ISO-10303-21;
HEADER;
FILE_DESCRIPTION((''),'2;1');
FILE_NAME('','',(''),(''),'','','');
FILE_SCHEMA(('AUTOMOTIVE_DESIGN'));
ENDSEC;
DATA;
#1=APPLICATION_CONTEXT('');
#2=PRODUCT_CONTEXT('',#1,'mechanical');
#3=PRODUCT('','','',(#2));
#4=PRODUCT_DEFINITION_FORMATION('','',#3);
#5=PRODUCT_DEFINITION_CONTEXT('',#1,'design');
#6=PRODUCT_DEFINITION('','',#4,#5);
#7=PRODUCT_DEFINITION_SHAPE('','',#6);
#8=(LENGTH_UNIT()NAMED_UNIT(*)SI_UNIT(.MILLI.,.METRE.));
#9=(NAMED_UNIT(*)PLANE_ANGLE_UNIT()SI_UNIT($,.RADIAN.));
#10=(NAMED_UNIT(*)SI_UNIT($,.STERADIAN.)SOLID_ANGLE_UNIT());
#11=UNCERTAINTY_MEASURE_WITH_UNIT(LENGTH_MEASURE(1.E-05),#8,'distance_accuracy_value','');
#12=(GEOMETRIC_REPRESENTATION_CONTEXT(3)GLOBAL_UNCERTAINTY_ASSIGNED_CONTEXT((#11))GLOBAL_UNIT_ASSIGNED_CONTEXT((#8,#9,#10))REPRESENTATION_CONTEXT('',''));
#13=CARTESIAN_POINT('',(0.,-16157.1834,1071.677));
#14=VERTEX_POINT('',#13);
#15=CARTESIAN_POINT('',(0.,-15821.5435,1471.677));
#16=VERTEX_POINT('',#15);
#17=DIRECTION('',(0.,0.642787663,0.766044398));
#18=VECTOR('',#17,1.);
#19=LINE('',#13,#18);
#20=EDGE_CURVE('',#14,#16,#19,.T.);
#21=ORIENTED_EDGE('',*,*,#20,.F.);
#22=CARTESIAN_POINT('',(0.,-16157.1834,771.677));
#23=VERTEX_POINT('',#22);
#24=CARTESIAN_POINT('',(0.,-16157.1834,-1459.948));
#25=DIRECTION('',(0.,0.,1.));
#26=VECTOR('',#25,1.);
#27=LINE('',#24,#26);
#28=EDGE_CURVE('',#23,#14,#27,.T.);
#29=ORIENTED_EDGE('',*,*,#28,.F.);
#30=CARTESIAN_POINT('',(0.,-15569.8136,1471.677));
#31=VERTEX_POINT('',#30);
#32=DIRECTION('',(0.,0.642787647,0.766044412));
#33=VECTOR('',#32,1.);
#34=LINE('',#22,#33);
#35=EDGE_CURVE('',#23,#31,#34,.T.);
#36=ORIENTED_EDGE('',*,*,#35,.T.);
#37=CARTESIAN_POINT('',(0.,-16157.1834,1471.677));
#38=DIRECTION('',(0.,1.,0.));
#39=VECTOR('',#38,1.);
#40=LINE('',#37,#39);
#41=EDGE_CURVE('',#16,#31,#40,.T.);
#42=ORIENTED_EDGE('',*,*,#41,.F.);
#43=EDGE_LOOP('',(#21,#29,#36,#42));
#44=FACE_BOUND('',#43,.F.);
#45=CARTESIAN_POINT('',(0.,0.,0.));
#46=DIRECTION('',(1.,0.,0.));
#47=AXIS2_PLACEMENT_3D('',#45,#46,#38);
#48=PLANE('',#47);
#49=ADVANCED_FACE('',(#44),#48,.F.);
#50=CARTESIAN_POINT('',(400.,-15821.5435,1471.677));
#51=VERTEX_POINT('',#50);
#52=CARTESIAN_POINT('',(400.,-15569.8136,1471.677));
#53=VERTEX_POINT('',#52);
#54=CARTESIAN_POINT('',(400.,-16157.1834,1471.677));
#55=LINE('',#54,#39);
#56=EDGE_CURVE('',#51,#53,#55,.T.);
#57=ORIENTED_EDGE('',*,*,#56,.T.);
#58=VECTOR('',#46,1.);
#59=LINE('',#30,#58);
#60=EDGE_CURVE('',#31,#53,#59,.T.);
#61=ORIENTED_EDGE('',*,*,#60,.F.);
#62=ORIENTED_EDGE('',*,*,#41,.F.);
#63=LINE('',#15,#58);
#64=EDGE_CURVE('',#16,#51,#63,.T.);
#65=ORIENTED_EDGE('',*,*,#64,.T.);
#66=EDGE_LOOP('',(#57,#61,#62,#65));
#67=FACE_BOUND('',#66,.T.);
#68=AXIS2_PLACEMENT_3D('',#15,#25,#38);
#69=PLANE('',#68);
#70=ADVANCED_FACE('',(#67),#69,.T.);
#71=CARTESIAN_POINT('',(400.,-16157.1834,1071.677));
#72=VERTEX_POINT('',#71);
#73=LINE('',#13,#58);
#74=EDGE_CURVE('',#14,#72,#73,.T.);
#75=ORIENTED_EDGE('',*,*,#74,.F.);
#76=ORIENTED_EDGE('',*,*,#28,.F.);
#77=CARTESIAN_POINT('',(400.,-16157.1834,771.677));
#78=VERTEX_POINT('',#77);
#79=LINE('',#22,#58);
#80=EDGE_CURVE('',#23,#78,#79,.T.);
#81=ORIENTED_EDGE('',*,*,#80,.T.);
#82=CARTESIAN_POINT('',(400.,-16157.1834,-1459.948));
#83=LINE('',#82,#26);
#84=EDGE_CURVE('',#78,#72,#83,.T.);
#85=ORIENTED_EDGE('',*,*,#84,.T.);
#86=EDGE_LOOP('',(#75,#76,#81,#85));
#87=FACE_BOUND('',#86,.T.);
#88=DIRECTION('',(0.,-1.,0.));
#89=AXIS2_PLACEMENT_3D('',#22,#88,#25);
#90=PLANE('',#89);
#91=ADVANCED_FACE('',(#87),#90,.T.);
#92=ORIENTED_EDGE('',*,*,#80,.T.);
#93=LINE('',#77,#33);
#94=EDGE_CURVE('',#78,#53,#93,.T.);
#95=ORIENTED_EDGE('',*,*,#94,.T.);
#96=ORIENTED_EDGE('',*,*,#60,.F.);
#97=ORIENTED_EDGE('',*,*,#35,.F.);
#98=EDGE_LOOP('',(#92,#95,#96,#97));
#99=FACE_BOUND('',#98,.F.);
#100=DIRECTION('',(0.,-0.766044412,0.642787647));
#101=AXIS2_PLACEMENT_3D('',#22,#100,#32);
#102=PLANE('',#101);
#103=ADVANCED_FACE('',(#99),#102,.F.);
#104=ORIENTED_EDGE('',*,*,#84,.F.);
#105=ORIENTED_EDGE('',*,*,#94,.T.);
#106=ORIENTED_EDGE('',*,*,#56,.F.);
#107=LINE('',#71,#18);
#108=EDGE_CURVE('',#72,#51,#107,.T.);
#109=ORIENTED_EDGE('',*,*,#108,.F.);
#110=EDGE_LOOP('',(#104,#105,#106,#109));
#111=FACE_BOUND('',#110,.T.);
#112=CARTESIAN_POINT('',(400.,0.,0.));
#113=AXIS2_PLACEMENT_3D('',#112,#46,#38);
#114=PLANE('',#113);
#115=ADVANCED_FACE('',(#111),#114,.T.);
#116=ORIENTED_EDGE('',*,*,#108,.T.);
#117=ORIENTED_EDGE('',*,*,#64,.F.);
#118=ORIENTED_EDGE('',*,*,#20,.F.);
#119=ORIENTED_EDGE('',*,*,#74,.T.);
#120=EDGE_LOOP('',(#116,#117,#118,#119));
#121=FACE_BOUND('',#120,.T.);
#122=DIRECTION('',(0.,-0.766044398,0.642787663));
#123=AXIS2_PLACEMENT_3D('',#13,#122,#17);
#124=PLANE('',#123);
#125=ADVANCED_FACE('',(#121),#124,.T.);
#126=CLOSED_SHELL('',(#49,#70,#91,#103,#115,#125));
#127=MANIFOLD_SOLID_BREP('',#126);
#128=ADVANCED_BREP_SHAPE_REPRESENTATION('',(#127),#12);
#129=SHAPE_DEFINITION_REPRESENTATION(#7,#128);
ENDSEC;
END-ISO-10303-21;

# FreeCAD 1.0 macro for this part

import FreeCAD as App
import Part
import Sketcher
from FreeCAD import Vector
Q = App.Units.Quantity


def add_polygon(sketch, points):
    """Adds a closed chain of lines whose ends are joined by coincident constraints."""
    first, n = sketch.GeometryCount, len(points)
    for a, b in zip(points, points[1:] + points[:1]):
        sketch.addGeometry(Part.LineSegment(App.Vector(*a, 0), App.Vector(*b, 0)), False)
    for i in range(n):
        sketch.addConstraint(Sketcher.Constraint("Coincident", first + i, 2, first + (i + 1) % n, 1))

doc = App.newDocument("Part")
params = doc.addObject("Spreadsheet::Sheet", "Params")
for row, (alias, value) in enumerate([
    ("sketch1_height", "300 mm"),
    ("pad1_length", "400 mm"),
], start=1):
    params.set(f"A{row}", alias)
    params.set(f"B{row}", "=" + value)
    params.setAlias(f"B{row}", alias)

body = doc.addObject("PartDesign::Body", "Body")

sketch1 = body.newObject("Sketcher::SketchObject", "Sketch")
sketch1.AttachmentSupport = (doc.getObject("YZ_Plane"), [""])
sketch1.MapMode = "FlatFace"
add_polygon(sketch1, [(-16157, 1072), (-16157, 772), (-15570, 1472), (-15822, 1472)])
sketch1.addConstraint(Sketcher.Constraint("Vertical", 0))
sketch1.addConstraint(Sketcher.Constraint("Horizontal", 2))
sketch1.addConstraint(Sketcher.Constraint("Parallel", 1, 3))
sketch1.addConstraint(Sketcher.Constraint("DistanceY", 0, 2, 0, 1, 300.0))
sketch1.addConstraint(Sketcher.Constraint("Angle", 1, Q("50 deg")))
sketch1.addConstraint(Sketcher.Constraint("DistanceY", 0, 2, 1, 2, 700.0))
sketch1.addConstraint(Sketcher.Constraint("DistanceY", -1, 1, 0, 2, 771.677))
sketch1.addConstraint(Sketcher.Constraint("DistanceX", 0, 2, -1, 1, 16157.1834))
sketch1.setExpression("Constraints[7]", "Params.sketch1_height")
pad1 = body.newObject("PartDesign::Pad", "Pad")
pad1.Profile = sketch1
pad1.setExpression("Length", "Params.pad1_length")

doc.recompute()
